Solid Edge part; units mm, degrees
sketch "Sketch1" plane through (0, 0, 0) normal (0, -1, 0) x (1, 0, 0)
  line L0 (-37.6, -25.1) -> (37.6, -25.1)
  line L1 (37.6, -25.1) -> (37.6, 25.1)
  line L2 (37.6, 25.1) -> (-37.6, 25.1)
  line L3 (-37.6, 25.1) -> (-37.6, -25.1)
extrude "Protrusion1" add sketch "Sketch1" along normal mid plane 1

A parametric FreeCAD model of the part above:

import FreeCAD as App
import Part
import Sketcher

doc = App.newDocument("Part")
params = doc.addObject("Spreadsheet::Sheet", "Params")
for row, (alias, value) in enumerate([
    ("sketch1_width", "75.2 mm"),
    ("sketch1_height", "50.2 mm"),
    ("pad1_length", "1 mm"),
], start=1):
    params.set(f"A{row}", alias)
    params.set(f"B{row}", "=" + value)
    params.setAlias(f"B{row}", alias)

body = doc.addObject("PartDesign::Body", "Body")

# Sketch on XZ plane
sketch1 = doc.addObject("Sketcher::SketchObject", "Sketch")
body.addObject(sketch1)
sketch1.AttachmentSupport = (doc.XZ_Plane, [""])
sketch1.MapMode = "FlatFace"
sketch1.addGeometry([
    Part.LineSegment(App.Vector(-38, 25, 0), App.Vector(-38, -25, 0)),
    Part.LineSegment(App.Vector(-38, -25, 0), App.Vector(38, -25, 0)),
    Part.LineSegment(App.Vector(38, -25, 0), App.Vector(38, 25, 0)),
    Part.LineSegment(App.Vector(38, 25, 0), App.Vector(-38, 25, 0)),
], False)
sketch1.addConstraint([
    Sketcher.Constraint("Coincident", 0, 2, 1, 1),
    Sketcher.Constraint("Coincident", 1, 2, 2, 1),
    Sketcher.Constraint("Coincident", 2, 2, 3, 1),
    Sketcher.Constraint("Coincident", 3, 2, 0, 1),
    Sketcher.Constraint("Vertical", 0),
    Sketcher.Constraint("Horizontal", 1),
    Sketcher.Constraint("Vertical", 2),
    Sketcher.Constraint("Horizontal", 3),
    Sketcher.Constraint("Symmetric", 0, 2, 2, 2, -1, 1),
    Sketcher.Constraint("DistanceX", 1, 1, 1, 2, 75.2),
    Sketcher.Constraint("DistanceY", 0, 2, 0, 1, 50.2),
])
sketch1.setExpression("Constraints[9]", "Params.sketch1_width")
sketch1.setExpression("Constraints[10]", "Params.sketch1_height")
pad1 = doc.addObject("PartDesign::Pad", "Pad")
body.addObject(pad1)
pad1.Profile = sketch1
pad1.setExpression("Length", "Params.pad1_length")
pad1.Midplane = True

doc.recompute()
